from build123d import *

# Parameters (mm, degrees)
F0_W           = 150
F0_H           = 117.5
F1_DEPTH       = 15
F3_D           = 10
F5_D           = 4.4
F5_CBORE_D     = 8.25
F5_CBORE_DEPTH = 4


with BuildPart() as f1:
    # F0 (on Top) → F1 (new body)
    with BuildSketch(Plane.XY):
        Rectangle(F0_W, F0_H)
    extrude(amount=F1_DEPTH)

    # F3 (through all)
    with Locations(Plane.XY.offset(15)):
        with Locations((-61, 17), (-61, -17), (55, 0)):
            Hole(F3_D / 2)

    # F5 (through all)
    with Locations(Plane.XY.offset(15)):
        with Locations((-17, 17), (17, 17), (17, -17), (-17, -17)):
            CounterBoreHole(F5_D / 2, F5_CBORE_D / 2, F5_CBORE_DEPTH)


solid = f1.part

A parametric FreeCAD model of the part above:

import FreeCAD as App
import Part
import Sketcher
Q = App.Units.Quantity


def add_polygon(sketch, points):
    """Adds a closed chain of lines whose ends are joined by coincident constraints."""
    first, n = sketch.GeometryCount, len(points)
    for a, b in zip(points, points[1:] + points[:1]):
        sketch.addGeometry(Part.LineSegment(App.Vector(*a, 0), App.Vector(*b, 0)), False)
    for i in range(n):
        sketch.addConstraint(Sketcher.Constraint("Coincident", first + i, 2, first + (i + 1) % n, 1))

doc = App.newDocument("Part")
body = doc.addObject("PartDesign::Body", "Body")

# Sketch on XY plane
sketch1 = doc.addObject("Sketcher::SketchObject", "Sketch")
body.addObject(sketch1)
sketch1.AttachmentSupport = (doc.XY_Plane, [""])
sketch1.MapMode = "FlatFace"
add_polygon(sketch1, [(-75, 59), (-75, -59), (75, -59), (75, 59)])  # lines 0-3
sketch1.addConstraint([
    Sketcher.Constraint("Vertical", 0),
    Sketcher.Constraint("Horizontal", 1),
    Sketcher.Constraint("Vertical", 2),
    Sketcher.Constraint("Horizontal", 3),
    Sketcher.Constraint("Symmetric", 0, 2, 2, 2, -1, 1),
    Sketcher.Constraint("DistanceX", 1, 1, 1, 2, Q("150 mm")),
    Sketcher.Constraint("DistanceY", 0, 2, 0, 1, Q("117.5 mm")),
])
pad1 = doc.addObject("PartDesign::Pad", "Pad")
body.addObject(pad1)
pad1.Profile = sketch1
pad1.Length = 15

# Sketch on XY plane
sketch2 = doc.addObject("Sketcher::SketchObject", "Sketch001")
body.addObject(sketch2)
sketch2.AttachmentSupport = (doc.XY_Plane, [""])
sketch2.MapMode = "FlatFace"
sketch2.AttachmentOffset = App.Placement(App.Vector(0, 0, 15), App.Rotation())
sketch2.addGeometry([
    Part.Circle(App.Vector(-61, 17, 0), App.Vector(0, 0, 1), 5),
    Part.Circle(App.Vector(-61, -17, 0), App.Vector(0, 0, 1), 5),
    Part.Circle(App.Vector(55, 0, 0), App.Vector(0, 0, 1), 5),
], False)
sketch2.addConstraint([
    Sketcher.Constraint("Equal", 0, 1),
    Sketcher.Constraint("Equal", 1, 2),
    Sketcher.Constraint("Symmetric", 0, 3, 1, 3, -1),
    Sketcher.Constraint("PointOnObject", 2, 3, -1),
    Sketcher.Constraint("Diameter", 0, Q("10 mm")),
    Sketcher.Constraint("DistanceX", 0, 3, -1, 1, Q("61 mm")),
    Sketcher.Constraint("DistanceY", -1, 1, 0, 3, Q("17 mm")),
    Sketcher.Constraint("DistanceX", -1, 1, 2, 3, Q("55 mm")),
])
doc.recompute()
hole = doc.addObject("PartDesign::Hole", "Hole")
body.addObject(hole)
hole.Profile = sketch2
hole.ThreadType = "None"
hole.Diameter = 10
hole.DepthType = "ThroughAll"

# Sketch on XY plane
sketch3 = doc.addObject("Sketcher::SketchObject", "Sketch002")
body.addObject(sketch3)
sketch3.AttachmentSupport = (doc.XY_Plane, [""])
sketch3.MapMode = "FlatFace"
sketch3.AttachmentOffset = App.Placement(App.Vector(0, 0, 15), App.Rotation())
sketch3.addGeometry([
    Part.Circle(App.Vector(-17, 17, 0), App.Vector(0, 0, 1), 2.2),
    Part.Circle(App.Vector(17, 17, 0), App.Vector(0, 0, 1), 2.2),
    Part.Circle(App.Vector(17, -17, 0), App.Vector(0, 0, 1), 2.2),
    Part.Circle(App.Vector(-17, -17, 0), App.Vector(0, 0, 1), 2.2),
], False)
sketch3.addConstraint([
    Sketcher.Constraint("Equal", 0, 1),
    Sketcher.Constraint("Equal", 1, 2),
    Sketcher.Constraint("Equal", 2, 3),
    Sketcher.Constraint("Symmetric", 0, 3, 2, 3, -1, 1),
    Sketcher.Constraint("Symmetric", 1, 3, 3, 3, -1, 1),
    Sketcher.Constraint("Symmetric", 0, 3, 1, 3, -2),
    Sketcher.Constraint("Diameter", 0, Q("4.4 mm")),
    Sketcher.Constraint("DistanceX", 0, 3, -1, 1, Q("17 mm")),
    Sketcher.Constraint("DistanceY", -1, 1, 0, 3, Q("17 mm")),
])
doc.recompute()
hole2 = doc.addObject("PartDesign::Hole", "Hole001")
body.addObject(hole2)
hole2.Profile = sketch3
hole2.ThreadType = "None"
hole2.Diameter = 4.4
hole2.DepthType = "ThroughAll"
hole2.HoleCutType = "Counterbore"
hole2.HoleCutDiameter = 8.25
hole2.HoleCutDepth = 4

doc.recompute()
